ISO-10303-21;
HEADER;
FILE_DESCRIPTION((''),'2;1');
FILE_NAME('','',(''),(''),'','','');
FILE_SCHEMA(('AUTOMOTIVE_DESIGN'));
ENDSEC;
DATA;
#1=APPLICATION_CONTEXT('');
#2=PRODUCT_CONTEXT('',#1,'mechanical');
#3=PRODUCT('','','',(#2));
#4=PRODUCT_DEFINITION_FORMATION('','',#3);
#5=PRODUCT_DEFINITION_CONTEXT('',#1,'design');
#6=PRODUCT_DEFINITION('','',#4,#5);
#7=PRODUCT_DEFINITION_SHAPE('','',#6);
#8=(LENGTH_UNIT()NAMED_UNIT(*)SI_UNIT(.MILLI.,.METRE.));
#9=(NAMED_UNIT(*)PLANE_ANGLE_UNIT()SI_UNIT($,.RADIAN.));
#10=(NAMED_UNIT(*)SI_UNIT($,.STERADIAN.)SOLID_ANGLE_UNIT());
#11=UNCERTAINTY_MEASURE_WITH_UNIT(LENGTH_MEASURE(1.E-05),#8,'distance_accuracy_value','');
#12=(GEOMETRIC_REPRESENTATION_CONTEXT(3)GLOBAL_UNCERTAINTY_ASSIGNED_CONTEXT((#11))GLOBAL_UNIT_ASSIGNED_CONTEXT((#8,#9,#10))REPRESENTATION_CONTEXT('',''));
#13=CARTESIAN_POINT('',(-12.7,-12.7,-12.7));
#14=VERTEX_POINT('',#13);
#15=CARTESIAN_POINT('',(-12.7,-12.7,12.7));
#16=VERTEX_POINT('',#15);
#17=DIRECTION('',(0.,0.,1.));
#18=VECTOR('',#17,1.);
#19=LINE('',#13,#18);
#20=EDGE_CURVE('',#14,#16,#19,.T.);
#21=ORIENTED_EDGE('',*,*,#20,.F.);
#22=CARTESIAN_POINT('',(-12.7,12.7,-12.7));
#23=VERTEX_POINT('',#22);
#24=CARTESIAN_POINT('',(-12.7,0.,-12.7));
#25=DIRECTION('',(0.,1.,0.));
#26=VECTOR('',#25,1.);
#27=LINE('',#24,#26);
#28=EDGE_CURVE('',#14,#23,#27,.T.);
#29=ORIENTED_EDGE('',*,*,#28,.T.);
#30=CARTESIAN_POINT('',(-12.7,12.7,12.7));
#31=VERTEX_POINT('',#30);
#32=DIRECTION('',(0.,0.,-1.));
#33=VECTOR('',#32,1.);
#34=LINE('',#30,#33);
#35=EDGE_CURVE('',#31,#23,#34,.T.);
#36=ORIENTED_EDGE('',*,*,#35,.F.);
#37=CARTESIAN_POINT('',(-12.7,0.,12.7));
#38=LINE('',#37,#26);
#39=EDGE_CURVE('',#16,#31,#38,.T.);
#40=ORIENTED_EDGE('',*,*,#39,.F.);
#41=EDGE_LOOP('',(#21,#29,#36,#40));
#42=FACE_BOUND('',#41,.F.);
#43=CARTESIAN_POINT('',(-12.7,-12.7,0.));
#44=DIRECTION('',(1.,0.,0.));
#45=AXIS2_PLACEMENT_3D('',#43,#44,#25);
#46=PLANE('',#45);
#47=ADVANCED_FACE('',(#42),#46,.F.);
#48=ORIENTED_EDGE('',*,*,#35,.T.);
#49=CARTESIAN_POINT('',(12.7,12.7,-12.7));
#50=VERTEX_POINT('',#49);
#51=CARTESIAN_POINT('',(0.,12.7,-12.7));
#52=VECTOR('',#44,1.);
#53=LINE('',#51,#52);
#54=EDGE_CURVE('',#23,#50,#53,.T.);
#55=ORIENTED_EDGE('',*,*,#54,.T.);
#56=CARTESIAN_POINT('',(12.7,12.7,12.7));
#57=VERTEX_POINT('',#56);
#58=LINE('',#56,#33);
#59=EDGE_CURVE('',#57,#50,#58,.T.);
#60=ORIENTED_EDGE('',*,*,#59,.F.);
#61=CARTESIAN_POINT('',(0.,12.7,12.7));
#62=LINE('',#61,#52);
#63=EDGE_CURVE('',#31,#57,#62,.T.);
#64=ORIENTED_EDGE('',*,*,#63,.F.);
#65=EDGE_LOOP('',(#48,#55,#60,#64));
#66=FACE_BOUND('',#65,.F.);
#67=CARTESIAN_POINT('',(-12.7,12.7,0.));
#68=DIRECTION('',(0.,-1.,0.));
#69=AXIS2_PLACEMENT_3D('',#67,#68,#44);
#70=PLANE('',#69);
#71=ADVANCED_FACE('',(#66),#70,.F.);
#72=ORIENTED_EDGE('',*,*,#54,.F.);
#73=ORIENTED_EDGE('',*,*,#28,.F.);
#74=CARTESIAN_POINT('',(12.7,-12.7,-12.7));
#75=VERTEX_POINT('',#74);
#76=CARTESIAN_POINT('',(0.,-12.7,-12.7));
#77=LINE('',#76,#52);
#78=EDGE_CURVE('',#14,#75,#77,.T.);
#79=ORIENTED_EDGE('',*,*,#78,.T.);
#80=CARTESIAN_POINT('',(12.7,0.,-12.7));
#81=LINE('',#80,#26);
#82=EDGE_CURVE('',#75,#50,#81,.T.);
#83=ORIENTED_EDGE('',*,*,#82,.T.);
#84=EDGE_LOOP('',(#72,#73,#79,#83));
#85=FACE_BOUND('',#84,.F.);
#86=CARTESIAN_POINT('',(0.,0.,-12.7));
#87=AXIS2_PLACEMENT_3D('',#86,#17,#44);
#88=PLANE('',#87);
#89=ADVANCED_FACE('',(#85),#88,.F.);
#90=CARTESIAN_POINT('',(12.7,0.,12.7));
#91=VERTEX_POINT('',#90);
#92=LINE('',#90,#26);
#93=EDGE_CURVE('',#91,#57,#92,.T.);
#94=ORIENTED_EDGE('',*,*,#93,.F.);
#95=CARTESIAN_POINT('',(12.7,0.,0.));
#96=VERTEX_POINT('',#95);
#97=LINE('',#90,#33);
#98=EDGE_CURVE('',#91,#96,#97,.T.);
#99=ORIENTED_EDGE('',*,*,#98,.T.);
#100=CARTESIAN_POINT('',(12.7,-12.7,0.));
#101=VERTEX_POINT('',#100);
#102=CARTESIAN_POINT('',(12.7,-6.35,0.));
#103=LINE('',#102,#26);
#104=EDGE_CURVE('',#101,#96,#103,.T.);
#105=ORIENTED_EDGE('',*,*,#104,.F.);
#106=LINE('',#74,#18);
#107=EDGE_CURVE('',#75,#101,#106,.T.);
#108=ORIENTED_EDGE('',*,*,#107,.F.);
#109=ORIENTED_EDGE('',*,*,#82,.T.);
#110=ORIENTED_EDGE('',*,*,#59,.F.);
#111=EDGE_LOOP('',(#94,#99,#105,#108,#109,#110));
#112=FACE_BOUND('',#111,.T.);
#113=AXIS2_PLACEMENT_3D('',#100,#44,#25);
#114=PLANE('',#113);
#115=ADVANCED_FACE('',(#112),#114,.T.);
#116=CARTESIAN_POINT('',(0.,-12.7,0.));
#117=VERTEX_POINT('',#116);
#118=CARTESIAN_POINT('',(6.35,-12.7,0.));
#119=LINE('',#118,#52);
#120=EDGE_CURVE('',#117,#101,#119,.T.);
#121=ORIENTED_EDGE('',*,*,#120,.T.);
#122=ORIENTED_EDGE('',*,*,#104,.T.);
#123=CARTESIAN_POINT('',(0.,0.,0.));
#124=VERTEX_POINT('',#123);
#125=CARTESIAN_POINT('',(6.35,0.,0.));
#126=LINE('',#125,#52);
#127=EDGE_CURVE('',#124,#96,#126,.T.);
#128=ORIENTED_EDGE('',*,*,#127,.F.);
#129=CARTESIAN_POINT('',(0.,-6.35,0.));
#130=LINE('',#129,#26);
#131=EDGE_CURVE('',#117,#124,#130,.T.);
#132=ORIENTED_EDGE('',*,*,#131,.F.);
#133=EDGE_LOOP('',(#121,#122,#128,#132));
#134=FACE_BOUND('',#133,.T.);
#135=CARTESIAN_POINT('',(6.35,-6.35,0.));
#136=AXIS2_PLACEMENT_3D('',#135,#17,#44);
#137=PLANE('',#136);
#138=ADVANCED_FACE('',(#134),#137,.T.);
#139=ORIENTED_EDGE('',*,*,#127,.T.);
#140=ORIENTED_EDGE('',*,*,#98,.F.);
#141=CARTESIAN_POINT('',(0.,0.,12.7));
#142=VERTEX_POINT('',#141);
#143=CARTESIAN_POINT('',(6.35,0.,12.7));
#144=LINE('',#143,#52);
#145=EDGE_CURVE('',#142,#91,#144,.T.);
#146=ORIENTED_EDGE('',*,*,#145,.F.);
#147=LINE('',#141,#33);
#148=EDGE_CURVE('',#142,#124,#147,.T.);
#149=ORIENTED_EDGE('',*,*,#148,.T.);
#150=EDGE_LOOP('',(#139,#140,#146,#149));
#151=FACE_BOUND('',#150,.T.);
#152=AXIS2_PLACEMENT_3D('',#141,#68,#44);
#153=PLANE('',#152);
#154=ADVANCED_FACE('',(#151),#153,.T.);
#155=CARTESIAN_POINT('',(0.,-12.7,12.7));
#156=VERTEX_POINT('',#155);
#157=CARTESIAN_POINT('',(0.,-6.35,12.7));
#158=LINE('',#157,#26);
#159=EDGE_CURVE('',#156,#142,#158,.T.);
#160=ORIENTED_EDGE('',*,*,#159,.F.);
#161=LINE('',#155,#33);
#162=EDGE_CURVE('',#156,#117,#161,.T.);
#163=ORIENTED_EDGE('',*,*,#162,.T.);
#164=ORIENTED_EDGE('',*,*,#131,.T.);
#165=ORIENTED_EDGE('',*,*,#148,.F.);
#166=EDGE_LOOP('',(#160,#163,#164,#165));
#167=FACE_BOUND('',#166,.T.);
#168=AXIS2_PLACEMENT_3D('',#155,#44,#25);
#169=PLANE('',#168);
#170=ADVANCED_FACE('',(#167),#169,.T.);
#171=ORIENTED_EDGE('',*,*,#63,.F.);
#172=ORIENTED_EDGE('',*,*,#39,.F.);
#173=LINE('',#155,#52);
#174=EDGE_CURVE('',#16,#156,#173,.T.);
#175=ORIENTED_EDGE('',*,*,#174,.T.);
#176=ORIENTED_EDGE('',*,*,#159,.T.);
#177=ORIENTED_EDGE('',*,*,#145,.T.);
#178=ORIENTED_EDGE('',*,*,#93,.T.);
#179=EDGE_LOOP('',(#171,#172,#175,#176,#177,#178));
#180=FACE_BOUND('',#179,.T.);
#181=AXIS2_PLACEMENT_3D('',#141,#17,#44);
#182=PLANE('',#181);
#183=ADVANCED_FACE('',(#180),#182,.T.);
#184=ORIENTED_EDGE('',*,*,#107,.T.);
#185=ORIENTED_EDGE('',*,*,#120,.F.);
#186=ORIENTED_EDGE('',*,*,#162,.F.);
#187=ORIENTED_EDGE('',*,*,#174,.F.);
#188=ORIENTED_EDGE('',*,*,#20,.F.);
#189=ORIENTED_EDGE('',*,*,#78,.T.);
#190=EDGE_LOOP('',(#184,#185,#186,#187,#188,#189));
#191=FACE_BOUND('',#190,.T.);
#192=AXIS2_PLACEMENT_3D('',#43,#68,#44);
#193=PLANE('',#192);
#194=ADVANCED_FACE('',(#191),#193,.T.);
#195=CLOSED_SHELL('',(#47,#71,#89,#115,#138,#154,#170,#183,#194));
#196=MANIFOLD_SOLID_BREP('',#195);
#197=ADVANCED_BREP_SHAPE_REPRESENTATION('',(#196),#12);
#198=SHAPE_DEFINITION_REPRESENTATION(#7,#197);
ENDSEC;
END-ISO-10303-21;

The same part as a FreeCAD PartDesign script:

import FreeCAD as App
import Part
import Sketcher
from FreeCAD import Vector
Q = App.Units.Quantity

doc = App.newDocument("Part")
body = doc.addObject("PartDesign::Body", "Body")

sketch1 = body.newObject("Sketcher::SketchObject", "Sketch")
sketch1.AttachmentSupport = (doc.getObject("XY_Plane"), [""])
sketch1.MapMode = "FlatFace"
sketch1.addGeometry([
    Part.LineSegment(Vector(-13, 13, 0), Vector(-13, -13, 0)),
    Part.LineSegment(Vector(-13, -13, 0), Vector(13, -13, 0)),
    Part.LineSegment(Vector(13, -13, 0), Vector(13, 13, 0)),
    Part.LineSegment(Vector(13, 13, 0), Vector(-13, 13, 0)),
], False)
sketch1.addConstraint([
    Sketcher.Constraint("Coincident", 0, 2, 1, 1),
    Sketcher.Constraint("Coincident", 1, 2, 2, 1),
    Sketcher.Constraint("Coincident", 2, 2, 3, 1),
    Sketcher.Constraint("Coincident", 3, 2, 0, 1),
    Sketcher.Constraint("Vertical", 0),
    Sketcher.Constraint("Horizontal", 1),
    Sketcher.Constraint("Vertical", 2),
    Sketcher.Constraint("Horizontal", 3),
    Sketcher.Constraint("Symmetric", 0, 2, 2, 2, -1, 1),
    Sketcher.Constraint("Equal", 3, 0),
    Sketcher.Constraint("DistanceX", 1, 1, 1, 2, Q("1 in")),
])
pad1 = body.newObject("PartDesign::Pad", "Pad")
pad1.Profile = sketch1
pad1.Length = Q("1 in")
pad1.Midplane = True

sketch2 = body.newObject("Sketcher::SketchObject", "Sketch001")
sketch2.AttachmentSupport = (doc.getObject("XY_Plane"), [""])
sketch2.MapMode = "FlatFace"
sketch2.AttachmentOffset = App.Placement(Vector(0, 0, 0.5 * 25.4), App.Rotation())
sketch2.addGeometry([
    Part.LineSegment(Vector(0, 0, 0), Vector(0, -13, 0)),
    Part.LineSegment(Vector(0, -13, 0), Vector(13, -13, 0)),
    Part.LineSegment(Vector(13, -13, 0), Vector(13, 0, 0)),
    Part.LineSegment(Vector(13, 0, 0), Vector(0, 0, 0)),
], False)
sketch2.addConstraint([
    Sketcher.Constraint("Coincident", 0, 2, 1, 1),
    Sketcher.Constraint("Coincident", 1, 2, 2, 1),
    Sketcher.Constraint("Coincident", 2, 2, 3, 1),
    Sketcher.Constraint("Coincident", 3, 2, 0, 1),
    Sketcher.Constraint("Vertical", 0),
    Sketcher.Constraint("Horizontal", 1),
    Sketcher.Constraint("Vertical", 2),
    Sketcher.Constraint("Horizontal", 3),
    Sketcher.Constraint("Coincident", 3, 2, -1, 1),
    Sketcher.Constraint("Equal", 3, 0),
    Sketcher.Constraint("DistanceX", 1, 1, 1, 2, Q("0.5 in")),
])
pocket1 = body.newObject("PartDesign::Pocket", "Pocket")
pocket1.Profile = sketch2
pocket1.Length = Q("0.5 in")

doc.recompute()
